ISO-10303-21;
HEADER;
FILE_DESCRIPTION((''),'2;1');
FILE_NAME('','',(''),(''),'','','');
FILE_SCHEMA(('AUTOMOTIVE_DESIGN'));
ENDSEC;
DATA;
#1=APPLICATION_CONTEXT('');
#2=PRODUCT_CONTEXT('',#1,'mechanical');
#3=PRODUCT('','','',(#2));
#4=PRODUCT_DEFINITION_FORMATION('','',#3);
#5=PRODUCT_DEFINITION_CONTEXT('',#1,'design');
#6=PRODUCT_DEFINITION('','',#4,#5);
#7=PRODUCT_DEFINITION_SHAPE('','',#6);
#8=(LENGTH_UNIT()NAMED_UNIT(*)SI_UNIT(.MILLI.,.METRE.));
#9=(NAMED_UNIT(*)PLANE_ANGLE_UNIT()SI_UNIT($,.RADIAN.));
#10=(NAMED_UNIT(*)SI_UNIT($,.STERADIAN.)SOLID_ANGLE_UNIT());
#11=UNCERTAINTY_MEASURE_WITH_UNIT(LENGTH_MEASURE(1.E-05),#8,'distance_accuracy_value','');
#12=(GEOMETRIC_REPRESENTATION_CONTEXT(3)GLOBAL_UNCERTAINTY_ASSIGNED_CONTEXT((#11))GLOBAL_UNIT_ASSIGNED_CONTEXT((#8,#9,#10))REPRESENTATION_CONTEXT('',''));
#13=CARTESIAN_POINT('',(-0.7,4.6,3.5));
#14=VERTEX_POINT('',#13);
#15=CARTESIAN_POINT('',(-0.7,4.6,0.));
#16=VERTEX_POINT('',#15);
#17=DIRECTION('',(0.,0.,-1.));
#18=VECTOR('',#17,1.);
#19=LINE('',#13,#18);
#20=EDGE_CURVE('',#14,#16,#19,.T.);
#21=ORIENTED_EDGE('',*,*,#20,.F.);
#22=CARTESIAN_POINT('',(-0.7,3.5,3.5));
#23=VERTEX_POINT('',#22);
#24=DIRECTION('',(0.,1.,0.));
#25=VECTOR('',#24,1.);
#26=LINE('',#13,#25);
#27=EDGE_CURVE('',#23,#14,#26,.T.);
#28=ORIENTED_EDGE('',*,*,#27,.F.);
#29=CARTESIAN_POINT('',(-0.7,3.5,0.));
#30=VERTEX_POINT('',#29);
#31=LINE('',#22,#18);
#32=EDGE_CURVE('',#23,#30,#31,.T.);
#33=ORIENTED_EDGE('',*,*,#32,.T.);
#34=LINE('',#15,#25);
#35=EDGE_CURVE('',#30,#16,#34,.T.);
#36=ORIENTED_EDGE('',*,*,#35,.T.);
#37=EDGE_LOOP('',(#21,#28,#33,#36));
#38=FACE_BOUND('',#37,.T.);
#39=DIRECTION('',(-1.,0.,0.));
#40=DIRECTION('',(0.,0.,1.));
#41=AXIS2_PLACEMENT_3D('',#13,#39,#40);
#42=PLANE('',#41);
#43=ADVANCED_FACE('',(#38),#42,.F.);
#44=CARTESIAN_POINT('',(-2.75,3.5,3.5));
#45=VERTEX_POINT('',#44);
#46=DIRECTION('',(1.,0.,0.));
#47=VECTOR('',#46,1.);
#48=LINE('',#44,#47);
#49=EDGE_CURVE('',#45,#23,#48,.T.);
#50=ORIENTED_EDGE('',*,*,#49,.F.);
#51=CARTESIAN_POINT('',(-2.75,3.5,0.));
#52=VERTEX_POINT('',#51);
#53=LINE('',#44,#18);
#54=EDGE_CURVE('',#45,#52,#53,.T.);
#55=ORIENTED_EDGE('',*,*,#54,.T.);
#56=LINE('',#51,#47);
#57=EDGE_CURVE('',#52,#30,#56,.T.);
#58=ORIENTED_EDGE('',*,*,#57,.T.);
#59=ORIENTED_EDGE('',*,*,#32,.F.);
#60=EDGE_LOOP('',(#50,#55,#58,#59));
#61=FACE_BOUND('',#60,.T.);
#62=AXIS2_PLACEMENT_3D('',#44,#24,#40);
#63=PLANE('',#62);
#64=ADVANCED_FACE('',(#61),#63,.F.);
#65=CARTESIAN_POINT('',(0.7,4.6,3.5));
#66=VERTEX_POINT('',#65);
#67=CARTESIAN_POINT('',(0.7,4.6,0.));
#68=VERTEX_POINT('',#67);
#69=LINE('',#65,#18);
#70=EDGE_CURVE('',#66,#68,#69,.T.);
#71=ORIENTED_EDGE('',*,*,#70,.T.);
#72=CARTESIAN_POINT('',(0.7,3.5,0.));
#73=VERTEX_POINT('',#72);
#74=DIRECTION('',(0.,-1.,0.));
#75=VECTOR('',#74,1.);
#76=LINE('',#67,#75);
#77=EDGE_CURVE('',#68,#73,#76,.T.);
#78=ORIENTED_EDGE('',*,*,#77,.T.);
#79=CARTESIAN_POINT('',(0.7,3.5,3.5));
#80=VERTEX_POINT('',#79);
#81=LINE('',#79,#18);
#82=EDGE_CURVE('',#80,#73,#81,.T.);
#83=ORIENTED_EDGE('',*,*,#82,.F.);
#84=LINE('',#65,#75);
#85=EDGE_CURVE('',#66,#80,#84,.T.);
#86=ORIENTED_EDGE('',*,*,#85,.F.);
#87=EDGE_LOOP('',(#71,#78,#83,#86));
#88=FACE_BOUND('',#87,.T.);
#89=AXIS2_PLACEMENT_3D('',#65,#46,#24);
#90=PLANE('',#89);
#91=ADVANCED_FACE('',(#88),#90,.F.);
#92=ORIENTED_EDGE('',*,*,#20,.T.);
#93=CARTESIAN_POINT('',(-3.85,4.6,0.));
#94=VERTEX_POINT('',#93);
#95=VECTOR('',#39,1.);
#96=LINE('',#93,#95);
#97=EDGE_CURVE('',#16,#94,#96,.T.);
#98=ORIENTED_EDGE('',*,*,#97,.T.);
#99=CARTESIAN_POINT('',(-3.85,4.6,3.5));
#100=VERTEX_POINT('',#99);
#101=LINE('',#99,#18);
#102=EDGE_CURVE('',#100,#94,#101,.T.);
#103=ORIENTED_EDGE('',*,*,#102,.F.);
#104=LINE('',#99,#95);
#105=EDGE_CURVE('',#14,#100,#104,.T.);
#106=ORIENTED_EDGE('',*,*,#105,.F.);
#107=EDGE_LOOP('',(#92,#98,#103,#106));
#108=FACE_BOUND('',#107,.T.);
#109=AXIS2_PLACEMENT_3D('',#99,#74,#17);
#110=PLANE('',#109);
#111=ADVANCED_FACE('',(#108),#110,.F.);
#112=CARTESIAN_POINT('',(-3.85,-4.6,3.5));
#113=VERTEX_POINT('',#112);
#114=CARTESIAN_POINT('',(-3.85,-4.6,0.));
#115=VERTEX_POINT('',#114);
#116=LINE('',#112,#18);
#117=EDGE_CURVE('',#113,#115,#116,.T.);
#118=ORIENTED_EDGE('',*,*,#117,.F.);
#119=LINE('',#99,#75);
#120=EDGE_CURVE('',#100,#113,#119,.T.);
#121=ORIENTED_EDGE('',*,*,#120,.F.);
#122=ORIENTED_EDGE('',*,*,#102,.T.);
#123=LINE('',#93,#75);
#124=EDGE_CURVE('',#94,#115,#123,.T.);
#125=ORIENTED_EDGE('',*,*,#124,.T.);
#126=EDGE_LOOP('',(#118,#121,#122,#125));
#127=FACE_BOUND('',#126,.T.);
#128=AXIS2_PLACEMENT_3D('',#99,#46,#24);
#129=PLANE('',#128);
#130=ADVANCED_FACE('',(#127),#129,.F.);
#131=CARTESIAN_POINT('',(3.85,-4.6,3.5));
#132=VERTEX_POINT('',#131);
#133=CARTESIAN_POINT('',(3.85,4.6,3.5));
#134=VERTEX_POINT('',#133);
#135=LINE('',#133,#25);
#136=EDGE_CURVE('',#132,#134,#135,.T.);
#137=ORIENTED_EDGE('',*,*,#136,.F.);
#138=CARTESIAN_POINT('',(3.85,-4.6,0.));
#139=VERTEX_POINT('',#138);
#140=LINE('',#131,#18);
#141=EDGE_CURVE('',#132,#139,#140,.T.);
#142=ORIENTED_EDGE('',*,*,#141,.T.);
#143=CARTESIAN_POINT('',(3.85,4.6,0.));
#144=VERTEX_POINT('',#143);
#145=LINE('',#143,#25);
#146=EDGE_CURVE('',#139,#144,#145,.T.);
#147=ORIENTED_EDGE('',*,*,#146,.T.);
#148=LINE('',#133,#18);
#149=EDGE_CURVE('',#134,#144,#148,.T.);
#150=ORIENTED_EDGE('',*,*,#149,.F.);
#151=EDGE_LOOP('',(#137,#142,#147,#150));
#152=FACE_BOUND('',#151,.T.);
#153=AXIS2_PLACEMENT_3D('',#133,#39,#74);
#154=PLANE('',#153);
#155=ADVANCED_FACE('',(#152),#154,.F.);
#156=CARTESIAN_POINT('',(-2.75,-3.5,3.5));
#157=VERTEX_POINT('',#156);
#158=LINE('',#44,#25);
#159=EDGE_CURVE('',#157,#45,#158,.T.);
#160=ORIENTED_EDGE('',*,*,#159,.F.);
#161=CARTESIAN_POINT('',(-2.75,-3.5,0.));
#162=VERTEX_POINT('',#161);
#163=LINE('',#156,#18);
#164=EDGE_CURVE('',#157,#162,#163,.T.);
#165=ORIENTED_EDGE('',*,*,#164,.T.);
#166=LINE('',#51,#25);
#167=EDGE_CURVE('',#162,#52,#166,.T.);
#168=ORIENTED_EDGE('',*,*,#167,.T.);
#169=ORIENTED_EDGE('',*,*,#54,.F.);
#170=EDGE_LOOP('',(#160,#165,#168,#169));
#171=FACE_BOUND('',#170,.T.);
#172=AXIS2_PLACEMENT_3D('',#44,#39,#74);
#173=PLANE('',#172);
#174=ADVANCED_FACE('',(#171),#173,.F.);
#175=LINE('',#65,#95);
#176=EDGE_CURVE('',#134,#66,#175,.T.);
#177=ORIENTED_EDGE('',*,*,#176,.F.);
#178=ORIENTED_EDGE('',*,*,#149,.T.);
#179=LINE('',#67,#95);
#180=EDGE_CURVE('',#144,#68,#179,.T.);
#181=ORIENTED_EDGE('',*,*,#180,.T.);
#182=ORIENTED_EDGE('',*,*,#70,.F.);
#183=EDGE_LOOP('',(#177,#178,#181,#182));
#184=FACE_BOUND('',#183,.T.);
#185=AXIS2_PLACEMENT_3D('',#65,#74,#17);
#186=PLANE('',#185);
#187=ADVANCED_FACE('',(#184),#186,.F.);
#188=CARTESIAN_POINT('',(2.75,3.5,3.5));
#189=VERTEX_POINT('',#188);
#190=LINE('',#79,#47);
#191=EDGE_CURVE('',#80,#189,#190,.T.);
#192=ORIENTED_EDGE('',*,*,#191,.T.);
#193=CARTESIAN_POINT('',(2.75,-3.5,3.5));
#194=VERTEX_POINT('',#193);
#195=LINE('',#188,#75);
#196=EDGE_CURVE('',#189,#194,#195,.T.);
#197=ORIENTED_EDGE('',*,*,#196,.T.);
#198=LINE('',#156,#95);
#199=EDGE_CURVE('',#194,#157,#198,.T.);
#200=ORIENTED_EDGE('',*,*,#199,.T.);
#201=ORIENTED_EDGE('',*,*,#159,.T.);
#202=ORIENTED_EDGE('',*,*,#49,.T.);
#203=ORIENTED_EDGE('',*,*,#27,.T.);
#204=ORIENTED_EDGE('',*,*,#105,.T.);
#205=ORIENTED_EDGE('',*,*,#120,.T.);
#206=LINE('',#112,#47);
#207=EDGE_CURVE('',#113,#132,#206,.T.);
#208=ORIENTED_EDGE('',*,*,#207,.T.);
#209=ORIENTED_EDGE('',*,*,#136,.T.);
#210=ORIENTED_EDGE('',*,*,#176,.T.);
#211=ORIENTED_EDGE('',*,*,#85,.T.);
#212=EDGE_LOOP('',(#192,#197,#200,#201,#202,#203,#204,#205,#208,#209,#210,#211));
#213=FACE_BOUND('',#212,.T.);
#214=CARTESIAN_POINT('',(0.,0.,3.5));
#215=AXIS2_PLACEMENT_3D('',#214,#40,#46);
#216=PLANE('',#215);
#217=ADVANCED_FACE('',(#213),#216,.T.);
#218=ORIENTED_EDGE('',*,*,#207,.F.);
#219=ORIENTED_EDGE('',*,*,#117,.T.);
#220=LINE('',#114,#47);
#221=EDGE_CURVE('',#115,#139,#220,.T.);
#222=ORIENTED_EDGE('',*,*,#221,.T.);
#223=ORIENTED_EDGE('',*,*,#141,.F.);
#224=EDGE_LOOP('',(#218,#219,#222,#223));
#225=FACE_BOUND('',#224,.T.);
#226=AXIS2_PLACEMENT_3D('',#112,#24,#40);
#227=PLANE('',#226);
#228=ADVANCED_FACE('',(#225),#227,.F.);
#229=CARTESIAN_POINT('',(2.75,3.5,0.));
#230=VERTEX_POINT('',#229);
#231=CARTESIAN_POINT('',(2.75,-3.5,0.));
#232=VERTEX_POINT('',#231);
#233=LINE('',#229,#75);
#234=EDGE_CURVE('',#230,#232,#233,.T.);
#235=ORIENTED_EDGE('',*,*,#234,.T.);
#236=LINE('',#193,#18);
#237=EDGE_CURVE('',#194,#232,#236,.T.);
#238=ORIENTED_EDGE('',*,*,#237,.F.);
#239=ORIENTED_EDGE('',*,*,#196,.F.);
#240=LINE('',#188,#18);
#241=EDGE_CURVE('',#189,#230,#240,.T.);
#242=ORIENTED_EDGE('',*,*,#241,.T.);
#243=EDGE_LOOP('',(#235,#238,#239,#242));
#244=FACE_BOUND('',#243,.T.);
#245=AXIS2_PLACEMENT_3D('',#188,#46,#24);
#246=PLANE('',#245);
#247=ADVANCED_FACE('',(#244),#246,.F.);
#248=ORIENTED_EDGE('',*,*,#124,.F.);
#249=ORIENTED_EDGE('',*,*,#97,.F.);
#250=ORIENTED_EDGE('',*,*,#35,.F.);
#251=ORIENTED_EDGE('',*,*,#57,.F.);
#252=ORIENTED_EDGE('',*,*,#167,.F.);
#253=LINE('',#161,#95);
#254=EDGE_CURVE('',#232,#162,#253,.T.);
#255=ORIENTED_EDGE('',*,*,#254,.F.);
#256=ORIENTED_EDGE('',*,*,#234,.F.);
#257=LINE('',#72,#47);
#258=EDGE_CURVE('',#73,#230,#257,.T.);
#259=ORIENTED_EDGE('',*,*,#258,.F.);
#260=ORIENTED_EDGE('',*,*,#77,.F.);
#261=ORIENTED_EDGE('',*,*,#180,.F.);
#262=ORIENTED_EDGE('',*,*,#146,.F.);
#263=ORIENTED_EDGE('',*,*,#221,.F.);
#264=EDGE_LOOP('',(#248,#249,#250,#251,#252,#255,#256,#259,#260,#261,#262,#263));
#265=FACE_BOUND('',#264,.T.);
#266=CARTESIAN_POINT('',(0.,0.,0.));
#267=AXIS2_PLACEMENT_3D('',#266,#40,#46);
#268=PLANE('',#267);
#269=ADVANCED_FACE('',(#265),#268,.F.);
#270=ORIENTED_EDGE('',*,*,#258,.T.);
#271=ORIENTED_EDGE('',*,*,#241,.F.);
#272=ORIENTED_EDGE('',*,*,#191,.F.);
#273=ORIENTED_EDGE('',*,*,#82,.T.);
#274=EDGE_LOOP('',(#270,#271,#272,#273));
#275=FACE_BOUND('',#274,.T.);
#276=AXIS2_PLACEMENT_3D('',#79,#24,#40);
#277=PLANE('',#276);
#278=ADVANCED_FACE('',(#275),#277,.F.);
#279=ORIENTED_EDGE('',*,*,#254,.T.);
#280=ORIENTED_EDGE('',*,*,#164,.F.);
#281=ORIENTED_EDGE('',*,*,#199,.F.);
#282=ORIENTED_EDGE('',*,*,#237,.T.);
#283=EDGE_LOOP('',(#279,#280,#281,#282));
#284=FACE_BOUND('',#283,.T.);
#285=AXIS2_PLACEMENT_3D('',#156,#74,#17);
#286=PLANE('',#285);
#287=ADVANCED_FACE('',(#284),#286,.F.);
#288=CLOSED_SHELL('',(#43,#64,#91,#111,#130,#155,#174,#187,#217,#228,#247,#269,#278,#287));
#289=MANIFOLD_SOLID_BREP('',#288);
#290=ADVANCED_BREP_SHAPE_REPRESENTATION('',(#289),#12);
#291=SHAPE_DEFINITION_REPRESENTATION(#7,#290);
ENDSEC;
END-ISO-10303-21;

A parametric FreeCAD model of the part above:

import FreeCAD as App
import Part
import Sketcher
from FreeCAD import Vector
Q = App.Units.Quantity

doc = App.newDocument("Part")
body = doc.addObject("PartDesign::Body", "Body")

# Sketch on XY plane
sketch1 = body.newObject("Sketcher::SketchObject", "Sketch")
sketch1.AttachmentSupport = (doc.getObject("XY_Plane"), [""])
sketch1.MapMode = "FlatFace"
sketch1.addGeometry([
    Part.LineSegment(Vector(0.7, 3.5, 0), Vector(2.8, 3.5, 0)),  # 0
    Part.LineSegment(Vector(2.8, 3.5, 0), Vector(2.8, -3.5, 0)),  # 1
    Part.LineSegment(Vector(2.8, -3.5, 0), Vector(-2.8, -3.5, 0)),  # 2
    Part.LineSegment(Vector(-2.8, -3.5, 0), Vector(-2.8, 3.5, 0)),  # 3
    Part.LineSegment(Vector(-2.8, 3.5, 0), Vector(-0.7, 3.5, 0)),  # 4
    Part.LineSegment(Vector(-0.7, 3.5, 0), Vector(-0.7, 4.6, 0)),  # 5
    Part.LineSegment(Vector(-0.7, 4.6, 0), Vector(-3.9, 4.6, 0)),  # 6
    Part.LineSegment(Vector(-3.9, 4.6, 0), Vector(-3.9, -4.6, 0)),  # 7
    Part.LineSegment(Vector(-3.9, -4.6, 0), Vector(3.9, -4.6, 0)),  # 8
    Part.LineSegment(Vector(3.9, -4.6, 0), Vector(3.9, 4.6, 0)),  # 9
    Part.LineSegment(Vector(3.9, 4.6, 0), Vector(0.7, 4.6, 0)),  # 10
    Part.LineSegment(Vector(0.7, 4.6, 0), Vector(0.7, 3.5, 0)),  # 11
], False)
sketch1.addConstraint([
    Sketcher.Constraint("Coincident", 0, 2, 1, 1),
    Sketcher.Constraint("Coincident", 1, 2, 2, 1),
    Sketcher.Constraint("Coincident", 2, 2, 3, 1),
    Sketcher.Constraint("Coincident", 3, 2, 4, 1),
    Sketcher.Constraint("Coincident", 4, 2, 5, 1),
    Sketcher.Constraint("Coincident", 5, 2, 6, 1),
    Sketcher.Constraint("Coincident", 6, 2, 7, 1),
    Sketcher.Constraint("Coincident", 7, 2, 8, 1),
    Sketcher.Constraint("Coincident", 8, 2, 9, 1),
    Sketcher.Constraint("Coincident", 9, 2, 10, 1),
    Sketcher.Constraint("Coincident", 10, 2, 11, 1),
    Sketcher.Constraint("Coincident", 11, 2, 0, 1),
    Sketcher.Constraint("Horizontal", 0),
    Sketcher.Constraint("Vertical", 1),
    Sketcher.Constraint("Horizontal", 2),
    Sketcher.Constraint("Vertical", 3),
    Sketcher.Constraint("Horizontal", 4),
    Sketcher.Constraint("Vertical", 5),
    Sketcher.Constraint("Horizontal", 6),
    Sketcher.Constraint("Vertical", 7),
    Sketcher.Constraint("Horizontal", 8),
    Sketcher.Constraint("Vertical", 9),
    Sketcher.Constraint("Horizontal", 10),
    Sketcher.Constraint("Vertical", 11),
    Sketcher.Constraint("Symmetric", 0, 2, 2, 2, -1, 1),
    Sketcher.Constraint("Symmetric", 6, 2, 8, 2, -1, 1),
    Sketcher.Constraint("Symmetric", 5, 2, 10, 2, -2),
    Sketcher.Constraint("Horizontal", 0, 2, 3, 2),
    Sketcher.Constraint("DistanceY", 1, 2, 1, 1, Q("7 mm")),
    Sketcher.Constraint("DistanceX", 2, 2, 2, 1, Q("5.5 mm")),
    Sketcher.Constraint("DistanceX", 8, 1, 8, 2, Q("7.7 mm")),
    Sketcher.Constraint("DistanceY", 5, 1, 5, 2, Q("1.1 mm")),
    Sketcher.Constraint("DistanceX", 0, 1, 0, 2, Q("2.05 mm")),
])
pad1 = body.newObject("PartDesign::Pad", "Pad")
pad1.Profile = sketch1
pad1.Length = 3.5

doc.recompute()
